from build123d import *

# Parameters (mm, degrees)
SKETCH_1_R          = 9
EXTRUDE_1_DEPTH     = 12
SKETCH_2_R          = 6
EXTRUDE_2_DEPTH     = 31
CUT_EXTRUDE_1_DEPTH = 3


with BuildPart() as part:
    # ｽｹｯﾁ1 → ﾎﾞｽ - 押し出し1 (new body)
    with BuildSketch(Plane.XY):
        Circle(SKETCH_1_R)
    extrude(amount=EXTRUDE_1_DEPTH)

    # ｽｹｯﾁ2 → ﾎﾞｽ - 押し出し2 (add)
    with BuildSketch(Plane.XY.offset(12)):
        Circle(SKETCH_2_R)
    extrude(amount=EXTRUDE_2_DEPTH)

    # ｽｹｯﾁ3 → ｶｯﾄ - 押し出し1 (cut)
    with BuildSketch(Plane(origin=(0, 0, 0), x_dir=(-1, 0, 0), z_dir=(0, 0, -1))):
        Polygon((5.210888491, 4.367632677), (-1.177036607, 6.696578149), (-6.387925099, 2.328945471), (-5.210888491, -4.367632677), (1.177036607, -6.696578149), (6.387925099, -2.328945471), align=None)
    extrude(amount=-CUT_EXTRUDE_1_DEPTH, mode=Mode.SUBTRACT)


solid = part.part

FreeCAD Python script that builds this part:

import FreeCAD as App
import Part
import Sketcher

V = App.Vector


def add_polygon(sketch, points):
    """Adds a closed chain of lines whose ends are joined by coincident constraints."""
    first, n = sketch.GeometryCount, len(points)
    for a, b in zip(points, points[1:] + points[:1]):
        sketch.addGeometry(Part.LineSegment(App.Vector(*a, 0), App.Vector(*b, 0)), False)
    for i in range(n):
        sketch.addConstraint(Sketcher.Constraint("Coincident", first + i, 2, first + (i + 1) % n, 1))

doc = App.newDocument("Part")
body = doc.addObject("PartDesign::Body", "Body")

# Sketch on XY plane
sketch1 = body.newObject("Sketcher::SketchObject", "Sketch")
sketch1.AttachmentSupport = (doc.getObject("XY_Plane"), [""])
sketch1.MapMode = "FlatFace"
sketch1.addGeometry(Part.Circle(V(0, 0, 0), V(0, 0, 1), 9), False)
sketch1.addConstraint(Sketcher.Constraint("Coincident", 0, 3, -1, 1))
sketch1.addConstraint(Sketcher.Constraint("Diameter", 0, 18.0))
pad1 = body.newObject("PartDesign::Pad", "Pad")
pad1.Profile = sketch1
pad1.Length = 12

# Sketch on XY plane
sketch2 = body.newObject("Sketcher::SketchObject", "Sketch001")
sketch2.AttachmentSupport = (doc.getObject("XY_Plane"), [""])
sketch2.MapMode = "FlatFace"
sketch2.AttachmentOffset = App.Placement(V(0, 0, 12), App.Rotation())
sketch2.addGeometry(Part.Circle(V(0, 0, 0), V(0, 0, 1), 6), False)
sketch2.addConstraint(Sketcher.Constraint("Coincident", 0, 3, -1, 1))
sketch2.addConstraint(Sketcher.Constraint("Diameter", 0, 12.0))
pad2 = body.newObject("PartDesign::Pad", "Pad001")
pad2.Profile = sketch2
pad2.Length = 31

# Sketch on XY plane
sketch3 = body.newObject("Sketcher::SketchObject", "Sketch002")
sketch3.AttachmentSupport = (doc.getObject("XY_Plane"), [""])
sketch3.MapMode = "FlatFace"
add_polygon(sketch3, [(-5, 4), (1, 7), (6, 2), (5, -4), (-1, -7), (-6, -2)])  # lines 0-5
sketch3.addConstraint(Sketcher.Constraint("Symmetric", 0, 2, 3, 2, -1, 1))
sketch3.addConstraint(Sketcher.Constraint("Symmetric", 1, 2, 4, 2, -1, 1))
sketch3.addConstraint(Sketcher.Constraint("Symmetric", 2, 2, 5, 2, -1, 1))
sketch3.addConstraint(Sketcher.Constraint("Equal", 0, 1))
sketch3.addConstraint(Sketcher.Constraint("Equal", 1, 2))
sketch3.addConstraint(Sketcher.Constraint("DistanceY", -1, 1, 0, 2, 6.696578))
sketch3.addConstraint(Sketcher.Constraint("DistanceX", -1, 1, 2, 2, 5.210888))
sketch3.addConstraint(Sketcher.Constraint("DistanceX", 0, 2, 1, 2, 5.210888))
sketch3.addConstraint(Sketcher.Constraint("DistanceY", 2, 2, 1, 2, 6.696578))
pocket1 = body.newObject("PartDesign::Pocket", "Pocket")
pocket1.Profile = sketch3
pocket1.Length = 3
pocket1.Reversed = True

doc.recompute()
